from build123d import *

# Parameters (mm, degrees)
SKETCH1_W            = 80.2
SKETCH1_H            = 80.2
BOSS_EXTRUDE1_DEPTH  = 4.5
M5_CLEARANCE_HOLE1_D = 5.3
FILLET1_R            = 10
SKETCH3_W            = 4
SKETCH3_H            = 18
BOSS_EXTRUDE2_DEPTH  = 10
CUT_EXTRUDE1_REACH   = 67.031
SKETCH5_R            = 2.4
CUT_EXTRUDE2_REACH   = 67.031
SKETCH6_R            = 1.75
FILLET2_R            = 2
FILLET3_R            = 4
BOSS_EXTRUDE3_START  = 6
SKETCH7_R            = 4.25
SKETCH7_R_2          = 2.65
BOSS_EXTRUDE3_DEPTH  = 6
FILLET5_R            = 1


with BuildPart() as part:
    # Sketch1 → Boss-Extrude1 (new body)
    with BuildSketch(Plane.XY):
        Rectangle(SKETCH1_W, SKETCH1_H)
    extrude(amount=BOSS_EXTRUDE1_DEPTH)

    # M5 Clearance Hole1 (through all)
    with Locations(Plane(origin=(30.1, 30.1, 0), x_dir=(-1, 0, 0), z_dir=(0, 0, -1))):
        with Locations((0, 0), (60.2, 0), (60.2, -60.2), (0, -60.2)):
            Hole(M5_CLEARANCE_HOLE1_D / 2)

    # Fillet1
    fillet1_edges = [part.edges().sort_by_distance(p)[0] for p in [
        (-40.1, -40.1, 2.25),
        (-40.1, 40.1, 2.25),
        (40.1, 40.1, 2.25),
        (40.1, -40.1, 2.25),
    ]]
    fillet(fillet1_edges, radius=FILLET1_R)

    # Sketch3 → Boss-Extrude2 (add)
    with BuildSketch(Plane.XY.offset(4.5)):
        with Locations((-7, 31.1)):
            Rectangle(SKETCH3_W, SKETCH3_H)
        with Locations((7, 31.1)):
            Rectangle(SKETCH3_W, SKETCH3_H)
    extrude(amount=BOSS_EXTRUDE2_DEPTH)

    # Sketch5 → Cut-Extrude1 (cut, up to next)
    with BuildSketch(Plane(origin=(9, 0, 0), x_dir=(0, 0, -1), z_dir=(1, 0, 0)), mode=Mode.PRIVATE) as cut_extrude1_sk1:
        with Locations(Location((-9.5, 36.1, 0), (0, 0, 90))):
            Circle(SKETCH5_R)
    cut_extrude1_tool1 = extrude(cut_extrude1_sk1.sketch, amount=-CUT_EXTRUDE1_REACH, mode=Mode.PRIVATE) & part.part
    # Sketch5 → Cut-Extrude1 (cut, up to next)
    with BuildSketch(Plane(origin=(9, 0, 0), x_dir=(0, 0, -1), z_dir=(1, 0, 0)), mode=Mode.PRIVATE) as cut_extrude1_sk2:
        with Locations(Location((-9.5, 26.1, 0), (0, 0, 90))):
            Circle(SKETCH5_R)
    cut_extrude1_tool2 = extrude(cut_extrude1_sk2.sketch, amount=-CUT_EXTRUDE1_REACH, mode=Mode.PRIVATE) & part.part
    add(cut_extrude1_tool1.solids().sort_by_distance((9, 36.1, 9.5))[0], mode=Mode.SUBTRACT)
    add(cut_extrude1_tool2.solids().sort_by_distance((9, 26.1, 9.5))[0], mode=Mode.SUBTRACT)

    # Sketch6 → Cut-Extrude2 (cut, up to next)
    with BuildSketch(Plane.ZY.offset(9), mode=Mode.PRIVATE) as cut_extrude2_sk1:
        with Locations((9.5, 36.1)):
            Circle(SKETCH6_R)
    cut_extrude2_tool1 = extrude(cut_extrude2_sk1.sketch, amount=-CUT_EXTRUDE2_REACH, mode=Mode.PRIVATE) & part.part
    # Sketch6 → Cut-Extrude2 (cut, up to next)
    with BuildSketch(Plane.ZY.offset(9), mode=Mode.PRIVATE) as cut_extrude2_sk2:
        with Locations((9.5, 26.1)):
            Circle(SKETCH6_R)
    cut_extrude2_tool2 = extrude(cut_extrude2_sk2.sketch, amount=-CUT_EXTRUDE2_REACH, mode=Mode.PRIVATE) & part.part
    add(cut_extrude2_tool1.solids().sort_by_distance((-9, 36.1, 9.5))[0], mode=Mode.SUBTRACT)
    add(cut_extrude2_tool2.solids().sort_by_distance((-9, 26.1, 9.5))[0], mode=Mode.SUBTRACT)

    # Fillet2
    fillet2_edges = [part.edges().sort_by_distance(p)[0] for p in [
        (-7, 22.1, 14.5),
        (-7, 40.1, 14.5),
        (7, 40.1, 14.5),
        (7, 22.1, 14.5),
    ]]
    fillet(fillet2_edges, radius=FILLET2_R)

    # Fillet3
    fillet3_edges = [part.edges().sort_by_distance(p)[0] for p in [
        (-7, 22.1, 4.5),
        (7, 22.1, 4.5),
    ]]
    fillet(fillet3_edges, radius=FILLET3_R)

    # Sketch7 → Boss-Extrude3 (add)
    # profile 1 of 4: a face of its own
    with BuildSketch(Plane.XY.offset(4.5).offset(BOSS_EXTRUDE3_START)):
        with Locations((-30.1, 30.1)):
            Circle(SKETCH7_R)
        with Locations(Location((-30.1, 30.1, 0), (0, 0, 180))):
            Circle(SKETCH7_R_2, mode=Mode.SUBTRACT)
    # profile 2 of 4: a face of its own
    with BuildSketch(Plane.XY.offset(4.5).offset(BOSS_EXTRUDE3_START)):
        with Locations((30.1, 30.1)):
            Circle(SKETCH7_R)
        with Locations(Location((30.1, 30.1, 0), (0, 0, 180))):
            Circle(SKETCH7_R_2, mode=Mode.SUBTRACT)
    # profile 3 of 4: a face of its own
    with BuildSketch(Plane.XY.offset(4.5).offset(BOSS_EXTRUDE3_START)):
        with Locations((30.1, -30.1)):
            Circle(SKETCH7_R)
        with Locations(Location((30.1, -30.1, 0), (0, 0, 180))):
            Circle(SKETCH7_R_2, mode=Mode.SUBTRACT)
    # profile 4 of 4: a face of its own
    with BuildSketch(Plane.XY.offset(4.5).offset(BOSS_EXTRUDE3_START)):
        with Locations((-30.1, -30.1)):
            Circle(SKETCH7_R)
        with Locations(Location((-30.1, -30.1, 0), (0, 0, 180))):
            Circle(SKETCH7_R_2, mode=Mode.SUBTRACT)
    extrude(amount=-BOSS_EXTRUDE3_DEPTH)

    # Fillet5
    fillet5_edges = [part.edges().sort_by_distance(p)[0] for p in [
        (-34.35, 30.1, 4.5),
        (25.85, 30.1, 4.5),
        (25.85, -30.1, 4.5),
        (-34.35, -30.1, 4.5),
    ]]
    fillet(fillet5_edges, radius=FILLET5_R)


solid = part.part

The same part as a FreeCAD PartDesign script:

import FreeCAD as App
import Part
import Sketcher
from FreeCAD import Vector
Q = App.Units.Quantity


def edges_at(feature, points):
    """Names of the edges that pass closest to the given points."""
    edges = feature.Shape.Edges
    near = lambda p: min(range(len(edges)), key=lambda i: edges[i].distToShape(Part.Vertex(*p))[0])
    return sorted({f"Edge{near(p) + 1}" for p in points})

doc = App.newDocument("Part")
body = doc.addObject("PartDesign::Body", "Body")

sketch1 = doc.addObject("Sketcher::SketchObject", "Sketch")
body.addObject(sketch1)
sketch1.AttachmentSupport = (doc.XY_Plane, [""])
sketch1.MapMode = "FlatFace"
sketch1.addGeometry(Part.LineSegment(Vector(-40.1, 40.1, 0), Vector(-40.1, -40.1, 0)), False)
sketch1.addGeometry(Part.LineSegment(Vector(-40.1, -40.1, 0), Vector(40.1, -40.1, 0)), False)
sketch1.addGeometry(Part.LineSegment(Vector(40.1, -40.1, 0), Vector(40.1, 40.1, 0)), False)
sketch1.addGeometry(Part.LineSegment(Vector(40.1, 40.1, 0), Vector(-40.1, 40.1, 0)), False)
sketch1.addConstraint(Sketcher.Constraint("Coincident", 0, 2, 1, 1))
sketch1.addConstraint(Sketcher.Constraint("Coincident", 1, 2, 2, 1))
sketch1.addConstraint(Sketcher.Constraint("Coincident", 2, 2, 3, 1))
sketch1.addConstraint(Sketcher.Constraint("Coincident", 3, 2, 0, 1))
sketch1.addConstraint(Sketcher.Constraint("Vertical", 0))
sketch1.addConstraint(Sketcher.Constraint("Horizontal", 1))
sketch1.addConstraint(Sketcher.Constraint("Vertical", 2))
sketch1.addConstraint(Sketcher.Constraint("Horizontal", 3))
sketch1.addConstraint(Sketcher.Constraint("Symmetric", 0, 2, 2, 2, -1, 1))
sketch1.addConstraint(Sketcher.Constraint("Equal", 3, 0))
sketch1.addConstraint(Sketcher.Constraint("DistanceX", 1, 1, 1, 2, Q("80.2 mm")))
pad1 = doc.addObject("PartDesign::Pad", "Pad")
body.addObject(pad1)
pad1.Profile = sketch1
pad1.Length = 4.5

sketch2 = doc.addObject("Sketcher::SketchObject", "Sketch001")
body.addObject(sketch2)
sketch2.AttachmentSupport = (doc.XY_Plane, [""])
sketch2.MapMode = "FlatFace"
sketch2.addGeometry(Part.Circle(Vector(30.1, 30.1, 0), Vector(0, 0, 1), 2.65), False)
sketch2.addGeometry(Part.Circle(Vector(-30.1, 30.1, 0), Vector(0, 0, 1), 2.65), False)
sketch2.addGeometry(Part.Circle(Vector(-30.1, -30.1, 0), Vector(0, 0, 1), 2.65), False)
sketch2.addGeometry(Part.Circle(Vector(30.1, -30.1, 0), Vector(0, 0, 1), 2.65), False)
sketch2.addConstraint(Sketcher.Constraint("Equal", 0, 1))
sketch2.addConstraint(Sketcher.Constraint("Equal", 1, 2))
sketch2.addConstraint(Sketcher.Constraint("Equal", 2, 3))
sketch2.addConstraint(Sketcher.Constraint("Symmetric", 0, 3, 2, 3, -1, 1))
sketch2.addConstraint(Sketcher.Constraint("Symmetric", 1, 3, 3, 3, -1, 1))
sketch2.addConstraint(Sketcher.Constraint("Symmetric", 0, 3, 1, 3, -2))
sketch2.addConstraint(Sketcher.Constraint("Diameter", 0, Q("5.3 mm")))
sketch2.addConstraint(Sketcher.Constraint("DistanceX", -1, 1, 0, 3, Q("30.1 mm")))
sketch2.addConstraint(Sketcher.Constraint("DistanceY", -1, 1, 0, 3, Q("30.1 mm")))
doc.recompute()
hole = doc.addObject("PartDesign::Hole", "Hole")
body.addObject(hole)
hole.Profile = sketch2
hole.ThreadType = "None"
hole.Diameter = 5.3
hole.DepthType = "ThroughAll"
hole.Reversed = True
doc.recompute()

fillet = doc.addObject("PartDesign::Fillet", "Fillet")
body.addObject(fillet)
fillet.Base = (hole, edges_at(hole, [
    (-40.1, -40.1, 2.25),
    (-40.1, 40.1, 2.25),
    (40.1, 40.1, 2.25),
    (40.1, -40.1, 2.25),
]))
fillet.Radius = 10

sketch3 = doc.addObject("Sketcher::SketchObject", "Sketch002")
body.addObject(sketch3)
sketch3.AttachmentSupport = (doc.XY_Plane, [""])
sketch3.MapMode = "FlatFace"
sketch3.AttachmentOffset = App.Placement(Vector(0, 0, 4.5), App.Rotation())
sketch3.addGeometry(Part.LineSegment(Vector(-9, 40.1, 0), Vector(-9, 22.1, 0)), False)
sketch3.addGeometry(Part.LineSegment(Vector(-9, 22.1, 0), Vector(-5, 22.1, 0)), False)
sketch3.addGeometry(Part.LineSegment(Vector(-5, 22.1, 0), Vector(-5, 40.1, 0)), False)
sketch3.addGeometry(Part.LineSegment(Vector(-5, 40.1, 0), Vector(-9, 40.1, 0)), False)
sketch3.addGeometry(Part.LineSegment(Vector(5, 40.1, 0), Vector(5, 22.1, 0)), False)
sketch3.addGeometry(Part.LineSegment(Vector(5, 22.1, 0), Vector(9, 22.1, 0)), False)
sketch3.addGeometry(Part.LineSegment(Vector(9, 22.1, 0), Vector(9, 40.1, 0)), False)
sketch3.addGeometry(Part.LineSegment(Vector(9, 40.1, 0), Vector(5, 40.1, 0)), False)
sketch3.addConstraint(Sketcher.Constraint("Coincident", 0, 2, 1, 1))
sketch3.addConstraint(Sketcher.Constraint("Coincident", 1, 2, 2, 1))
sketch3.addConstraint(Sketcher.Constraint("Coincident", 2, 2, 3, 1))
sketch3.addConstraint(Sketcher.Constraint("Coincident", 3, 2, 0, 1))
sketch3.addConstraint(Sketcher.Constraint("Coincident", 4, 2, 5, 1))
sketch3.addConstraint(Sketcher.Constraint("Coincident", 5, 2, 6, 1))
sketch3.addConstraint(Sketcher.Constraint("Coincident", 6, 2, 7, 1))
sketch3.addConstraint(Sketcher.Constraint("Coincident", 7, 2, 4, 1))
sketch3.addConstraint(Sketcher.Constraint("Vertical", 0))
sketch3.addConstraint(Sketcher.Constraint("Horizontal", 1))
sketch3.addConstraint(Sketcher.Constraint("Vertical", 2))
sketch3.addConstraint(Sketcher.Constraint("Horizontal", 3))
sketch3.addConstraint(Sketcher.Constraint("Vertical", 4))
sketch3.addConstraint(Sketcher.Constraint("Horizontal", 5))
sketch3.addConstraint(Sketcher.Constraint("Vertical", 6))
sketch3.addConstraint(Sketcher.Constraint("Horizontal", 7))
sketch3.addConstraint(Sketcher.Constraint("Symmetric", 1, 2, 4, 2, -2))
sketch3.addConstraint(Sketcher.Constraint("Symmetric", 3, 2, 6, 2, -2))
sketch3.addConstraint(Sketcher.Constraint("DistanceX", 1, 1, 1, 2, Q("4 mm")))
sketch3.addConstraint(Sketcher.Constraint("DistanceY", 0, 2, 0, 1, Q("18 mm")))
sketch3.addConstraint(Sketcher.Constraint("DistanceX", 0, 2, -1, 1, Q("9 mm")))
sketch3.addConstraint(Sketcher.Constraint("DistanceY", -1, 1, 0, 2, Q("22.1 mm")))
pad2 = doc.addObject("PartDesign::Pad", "Pad001")
body.addObject(pad2)
pad2.Profile = sketch3
pad2.Length = 10

sketch4 = doc.addObject("Sketcher::SketchObject", "Sketch003")
body.addObject(sketch4)
sketch4.AttachmentSupport = (doc.YZ_Plane, [""])
sketch4.MapMode = "FlatFace"
sketch4.AttachmentOffset = App.Placement(Vector(0, 0, 9), App.Rotation())
sketch4.addGeometry(Part.Circle(Vector(36.1, 9.5, 0), Vector(0, 0, 1), 2.4), False)
sketch4.addConstraint(Sketcher.Constraint("Diameter", 0, Q("4.8 mm")))
sketch4.addConstraint(Sketcher.Constraint("DistanceX", -1, 1, 0, 3, Q("36.1 mm")))
sketch4.addConstraint(Sketcher.Constraint("DistanceY", -1, 1, 0, 3, Q("9.5 mm")))
pocket1 = doc.addObject("PartDesign::Pocket", "Pocket")
body.addObject(pocket1)
pocket1.Profile = sketch4
pocket1.Type = "UpToFirst"

sketch5 = doc.addObject("Sketcher::SketchObject", "Sketch004")
body.addObject(sketch5)
sketch5.AttachmentSupport = (doc.YZ_Plane, [""])
sketch5.MapMode = "FlatFace"
sketch5.AttachmentOffset = App.Placement(Vector(0, 0, 9), App.Rotation())
sketch5.addGeometry(Part.Circle(Vector(26.1, 9.5, 0), Vector(0, 0, 1), 2.4), False)
sketch5.addConstraint(Sketcher.Constraint("Diameter", 0, Q("4.8 mm")))
sketch5.addConstraint(Sketcher.Constraint("DistanceX", -1, 1, 0, 3, Q("26.1 mm")))
sketch5.addConstraint(Sketcher.Constraint("DistanceY", -1, 1, 0, 3, Q("9.5 mm")))
pocket2 = doc.addObject("PartDesign::Pocket", "Pocket001")
body.addObject(pocket2)
pocket2.Profile = sketch5
pocket2.Type = "UpToFirst"

sketch6 = doc.addObject("Sketcher::SketchObject", "Sketch005")
body.addObject(sketch6)
sketch6.AttachmentSupport = (doc.YZ_Plane, [""])
sketch6.MapMode = "FlatFace"
sketch6.AttachmentOffset = App.Placement(Vector(0, 0, -9), App.Rotation())
sketch6.addGeometry(Part.Circle(Vector(36.1, 9.5, 0), Vector(0, 0, 1), 1.75), False)
sketch6.addConstraint(Sketcher.Constraint("Diameter", 0, Q("3.5 mm")))
sketch6.addConstraint(Sketcher.Constraint("DistanceX", -1, 1, 0, 3, Q("36.1 mm")))
sketch6.addConstraint(Sketcher.Constraint("DistanceY", -1, 1, 0, 3, Q("9.5 mm")))
pocket3 = doc.addObject("PartDesign::Pocket", "Pocket002")
body.addObject(pocket3)
pocket3.Profile = sketch6
pocket3.Type = "UpToFirst"
pocket3.Reversed = True

sketch7 = doc.addObject("Sketcher::SketchObject", "Sketch006")
body.addObject(sketch7)
sketch7.AttachmentSupport = (doc.YZ_Plane, [""])
sketch7.MapMode = "FlatFace"
sketch7.AttachmentOffset = App.Placement(Vector(0, 0, -9), App.Rotation())
sketch7.addGeometry(Part.Circle(Vector(26.1, 9.5, 0), Vector(0, 0, 1), 1.75), False)
sketch7.addConstraint(Sketcher.Constraint("Diameter", 0, Q("3.5 mm")))
sketch7.addConstraint(Sketcher.Constraint("DistanceX", -1, 1, 0, 3, Q("26.1 mm")))
sketch7.addConstraint(Sketcher.Constraint("DistanceY", -1, 1, 0, 3, Q("9.5 mm")))
pocket4 = doc.addObject("PartDesign::Pocket", "Pocket003")
body.addObject(pocket4)
pocket4.Profile = sketch7
pocket4.Type = "UpToFirst"
pocket4.Reversed = True
doc.recompute()

fillet2 = doc.addObject("PartDesign::Fillet", "Fillet001")
body.addObject(fillet2)
fillet2.Base = (pocket4, edges_at(pocket4, [
    (-7, 22.1, 14.5),
    (-7, 40.1, 14.5),
    (7, 40.1, 14.5),
    (7, 22.1, 14.5),
]))
fillet2.Radius = 2
doc.recompute()

fillet3 = doc.addObject("PartDesign::Fillet", "Fillet002")
body.addObject(fillet3)
fillet3.Base = (fillet2, edges_at(fillet2, [(-7, 22.1, 4.5), (7, 22.1, 4.5)]))
fillet3.Radius = 4

sketch8 = doc.addObject("Sketcher::SketchObject", "Sketch007")
body.addObject(sketch8)
sketch8.AttachmentSupport = (doc.XY_Plane, [""])
sketch8.MapMode = "FlatFace"
sketch8.AttachmentOffset = App.Placement(Vector(0, 0, 10.5), App.Rotation())
sketch8.addGeometry(Part.Circle(Vector(-30.1, 30.1, 0), Vector(0, 0, 1), 4.25), False)
sketch8.addGeometry(Part.Circle(Vector(-30.1, 30.1, 0), Vector(0, 0, 1), 2.65), False)
sketch8.addGeometry(Part.Circle(Vector(30.1, 30.1, 0), Vector(0, 0, 1), 4.25), False)
sketch8.addGeometry(Part.Circle(Vector(30.1, 30.1, 0), Vector(0, 0, 1), 2.65), False)
sketch8.addGeometry(Part.Circle(Vector(30.1, -30.1, 0), Vector(0, 0, 1), 4.25), False)
sketch8.addGeometry(Part.Circle(Vector(30.1, -30.1, 0), Vector(0, 0, 1), 2.65), False)
sketch8.addGeometry(Part.Circle(Vector(-30.1, -30.1, 0), Vector(0, 0, 1), 4.25), False)
sketch8.addGeometry(Part.Circle(Vector(-30.1, -30.1, 0), Vector(0, 0, 1), 2.65), False)
sketch8.addConstraint(Sketcher.Constraint("Coincident", 1, 3, 0, 3))
sketch8.addConstraint(Sketcher.Constraint("Coincident", 3, 3, 2, 3))
sketch8.addConstraint(Sketcher.Constraint("Coincident", 5, 3, 4, 3))
sketch8.addConstraint(Sketcher.Constraint("Coincident", 7, 3, 6, 3))
sketch8.addConstraint(Sketcher.Constraint("Equal", 0, 2))
sketch8.addConstraint(Sketcher.Constraint("Equal", 1, 3))
sketch8.addConstraint(Sketcher.Constraint("Equal", 2, 4))
sketch8.addConstraint(Sketcher.Constraint("Equal", 3, 5))
sketch8.addConstraint(Sketcher.Constraint("Equal", 4, 6))
sketch8.addConstraint(Sketcher.Constraint("Equal", 5, 7))
sketch8.addConstraint(Sketcher.Constraint("Symmetric", 0, 3, 4, 3, -1, 1))
sketch8.addConstraint(Sketcher.Constraint("Symmetric", 2, 3, 6, 3, -1, 1))
sketch8.addConstraint(Sketcher.Constraint("Symmetric", 0, 3, 2, 3, -2))
sketch8.addConstraint(Sketcher.Constraint("Diameter", 0, Q("8.5 mm")))
sketch8.addConstraint(Sketcher.Constraint("Diameter", 1, Q("5.3 mm")))
sketch8.addConstraint(Sketcher.Constraint("DistanceX", 0, 3, -1, 1, Q("30.1 mm")))
sketch8.addConstraint(Sketcher.Constraint("DistanceY", -1, 1, 0, 3, Q("30.1 mm")))
pad3 = doc.addObject("PartDesign::Pad", "Pad002")
body.addObject(pad3)
pad3.Profile = sketch8
pad3.Length = 6
pad3.Reversed = True
doc.recompute()

fillet4 = doc.addObject("PartDesign::Fillet", "Fillet003")
body.addObject(fillet4)
fillet4.Base = (pad3, edges_at(pad3, [
    (-34.35, 30.1, 4.5),
    (25.85, 30.1, 4.5),
    (25.85, -30.1, 4.5),
    (-34.35, -30.1, 4.5),
]))
fillet4.Radius = 1

doc.recompute()
